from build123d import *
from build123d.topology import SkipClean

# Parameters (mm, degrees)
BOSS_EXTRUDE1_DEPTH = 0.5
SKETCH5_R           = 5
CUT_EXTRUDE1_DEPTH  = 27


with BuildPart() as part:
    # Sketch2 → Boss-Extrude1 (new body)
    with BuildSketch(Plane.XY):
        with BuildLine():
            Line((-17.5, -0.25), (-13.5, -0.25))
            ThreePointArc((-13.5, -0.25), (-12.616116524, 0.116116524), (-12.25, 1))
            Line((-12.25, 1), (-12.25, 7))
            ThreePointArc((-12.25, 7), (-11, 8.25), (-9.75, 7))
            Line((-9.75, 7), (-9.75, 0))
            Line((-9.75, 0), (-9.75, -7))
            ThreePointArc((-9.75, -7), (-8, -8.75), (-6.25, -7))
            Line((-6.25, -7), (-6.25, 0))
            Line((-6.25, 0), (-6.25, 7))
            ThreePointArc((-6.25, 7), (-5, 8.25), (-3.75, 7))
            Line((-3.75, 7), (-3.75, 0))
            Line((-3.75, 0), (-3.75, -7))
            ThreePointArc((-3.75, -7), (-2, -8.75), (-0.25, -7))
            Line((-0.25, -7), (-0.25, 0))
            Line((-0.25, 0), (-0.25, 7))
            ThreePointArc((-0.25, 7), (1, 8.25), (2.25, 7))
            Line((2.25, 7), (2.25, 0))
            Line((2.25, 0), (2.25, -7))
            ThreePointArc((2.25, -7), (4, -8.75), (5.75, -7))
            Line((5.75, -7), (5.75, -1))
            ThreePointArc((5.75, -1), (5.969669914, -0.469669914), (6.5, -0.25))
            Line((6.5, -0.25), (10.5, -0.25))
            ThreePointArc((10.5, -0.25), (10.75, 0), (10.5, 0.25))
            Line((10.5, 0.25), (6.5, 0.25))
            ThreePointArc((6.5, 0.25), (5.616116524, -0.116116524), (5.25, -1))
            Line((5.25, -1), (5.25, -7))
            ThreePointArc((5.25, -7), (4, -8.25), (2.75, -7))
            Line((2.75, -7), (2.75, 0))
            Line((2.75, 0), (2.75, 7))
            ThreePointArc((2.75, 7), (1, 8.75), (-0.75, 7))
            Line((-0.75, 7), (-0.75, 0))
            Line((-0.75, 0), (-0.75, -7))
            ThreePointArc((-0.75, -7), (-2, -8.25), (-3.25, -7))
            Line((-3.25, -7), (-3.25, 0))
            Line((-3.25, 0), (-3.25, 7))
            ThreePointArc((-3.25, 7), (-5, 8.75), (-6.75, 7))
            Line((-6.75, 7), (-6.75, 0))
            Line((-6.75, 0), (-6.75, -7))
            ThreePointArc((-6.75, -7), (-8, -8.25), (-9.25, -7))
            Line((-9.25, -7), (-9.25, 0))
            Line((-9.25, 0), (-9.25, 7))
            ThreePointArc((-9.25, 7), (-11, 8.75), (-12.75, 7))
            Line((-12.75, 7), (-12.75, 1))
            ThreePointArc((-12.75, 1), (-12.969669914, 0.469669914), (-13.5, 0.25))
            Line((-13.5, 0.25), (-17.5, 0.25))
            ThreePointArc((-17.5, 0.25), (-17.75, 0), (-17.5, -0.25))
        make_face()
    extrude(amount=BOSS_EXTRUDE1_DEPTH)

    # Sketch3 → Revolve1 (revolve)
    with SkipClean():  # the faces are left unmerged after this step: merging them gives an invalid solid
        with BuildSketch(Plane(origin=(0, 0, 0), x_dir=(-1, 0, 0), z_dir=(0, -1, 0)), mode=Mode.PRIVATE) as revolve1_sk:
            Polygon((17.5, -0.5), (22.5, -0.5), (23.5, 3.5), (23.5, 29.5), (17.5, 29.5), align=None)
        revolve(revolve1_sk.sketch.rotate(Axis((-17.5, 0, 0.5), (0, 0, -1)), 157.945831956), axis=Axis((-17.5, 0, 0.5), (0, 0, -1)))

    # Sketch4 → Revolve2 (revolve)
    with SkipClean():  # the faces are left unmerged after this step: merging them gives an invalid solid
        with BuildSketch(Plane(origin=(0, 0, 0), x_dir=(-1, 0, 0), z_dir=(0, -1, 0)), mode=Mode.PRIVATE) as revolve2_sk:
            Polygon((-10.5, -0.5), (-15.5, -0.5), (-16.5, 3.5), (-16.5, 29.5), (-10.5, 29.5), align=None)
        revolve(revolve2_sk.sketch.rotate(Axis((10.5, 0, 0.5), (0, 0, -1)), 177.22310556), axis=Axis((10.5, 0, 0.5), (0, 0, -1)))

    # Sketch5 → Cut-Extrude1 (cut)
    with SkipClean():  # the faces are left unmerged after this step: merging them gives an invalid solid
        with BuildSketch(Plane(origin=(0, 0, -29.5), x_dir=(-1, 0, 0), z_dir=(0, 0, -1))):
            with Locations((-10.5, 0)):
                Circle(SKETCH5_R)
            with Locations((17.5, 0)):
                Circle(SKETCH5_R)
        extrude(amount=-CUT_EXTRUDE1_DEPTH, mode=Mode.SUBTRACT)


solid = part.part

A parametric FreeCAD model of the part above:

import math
import FreeCAD as App
import Part
import Sketcher
from FreeCAD import Vector


def add_polygon(sketch, points):
    """Adds a closed chain of lines whose ends are joined by coincident constraints."""
    first, n = sketch.GeometryCount, len(points)
    for a, b in zip(points, points[1:] + points[:1]):
        sketch.addGeometry(Part.LineSegment(App.Vector(*a, 0), App.Vector(*b, 0)), False)
    for i in range(n):
        sketch.addConstraint(Sketcher.Constraint("Coincident", first + i, 2, first + (i + 1) % n, 1))

doc = App.newDocument("Part")
body = doc.addObject("PartDesign::Body", "Body")

# Sketch on XY plane
sketch1 = body.newObject("Sketcher::SketchObject", "Sketch")
sketch1.AttachmentSupport = (doc.getObject("XY_Plane"), [""])
sketch1.MapMode = "FlatFace"
sketch1.addGeometry(Part.LineSegment(Vector(-17.5, -0.25, 0), Vector(-13.5, -0.25, 0)), False)
sketch1.addGeometry(Part.ArcOfCircle(Part.Circle(Vector(-13.5, 1, 0), Vector(0, 0, 1), 1.25), math.radians(-90), math.radians(0)), False)
sketch1.addGeometry(Part.LineSegment(Vector(-12.25, 1, 0), Vector(-12.25, 7, 0)), False)
sketch1.addGeometry(Part.ArcOfCircle(Part.Circle(Vector(-11, 7, 0), Vector(0, 0, 1), 1.25), math.radians(0), math.radians(180)), False)
sketch1.addGeometry(Part.LineSegment(Vector(-9.75, 7, 0), Vector(-9.75, -7, 0)), False)
sketch1.addGeometry(Part.ArcOfCircle(Part.Circle(Vector(-8, -7, 0), Vector(0, 0, 1), 1.75), math.radians(180), math.radians(360)), False)
sketch1.addGeometry(Part.LineSegment(Vector(-6.25, -7, 0), Vector(-6.25, 7, 0)), False)
sketch1.addGeometry(Part.ArcOfCircle(Part.Circle(Vector(-5, 7, 0), Vector(0, 0, 1), 1.25), math.radians(0), math.radians(180)), False)
sketch1.addGeometry(Part.LineSegment(Vector(-3.75, 7, 0), Vector(-3.75, -7, 0)), False)
sketch1.addGeometry(Part.ArcOfCircle(Part.Circle(Vector(-2, -7, 0), Vector(0, 0, 1), 1.75), math.radians(180), math.radians(360)), False)
sketch1.addGeometry(Part.LineSegment(Vector(-0.25, -7, 0), Vector(-0.25, 7, 0)), False)
sketch1.addGeometry(Part.ArcOfCircle(Part.Circle(Vector(1, 7, 0), Vector(0, 0, 1), 1.25), math.radians(0), math.radians(180)), False)
sketch1.addGeometry(Part.LineSegment(Vector(2.25, 7, 0), Vector(2.25, -7, 0)), False)
sketch1.addGeometry(Part.ArcOfCircle(Part.Circle(Vector(4, -7, 0), Vector(0, 0, 1), 1.75), math.radians(180), math.radians(360)), False)
sketch1.addGeometry(Part.LineSegment(Vector(5.75, -7, 0), Vector(5.75, -1, 0)), False)
sketch1.addGeometry(Part.ArcOfCircle(Part.Circle(Vector(6.5, -1, 0), Vector(0, 0, 1), 0.75), math.radians(90), math.radians(180)), False)
sketch1.addGeometry(Part.LineSegment(Vector(6.5, -0.25, 0), Vector(10.5, -0.25, 0)), False)
sketch1.addGeometry(Part.ArcOfCircle(Part.Circle(Vector(10.5, 0, 0), Vector(0, 0, 1), 0.25), math.radians(-90), math.radians(90)), False)
sketch1.addGeometry(Part.LineSegment(Vector(10.5, 0.25, 0), Vector(6.5, 0.25, 0)), False)
sketch1.addGeometry(Part.ArcOfCircle(Part.Circle(Vector(6.5, -1, 0), Vector(0, 0, 1), 1.25), math.radians(90), math.radians(180)), False)
sketch1.addGeometry(Part.LineSegment(Vector(5.25, -1, 0), Vector(5.25, -7, 0)), False)
sketch1.addGeometry(Part.ArcOfCircle(Part.Circle(Vector(4, -7, 0), Vector(0, 0, 1), 1.25), math.radians(180), math.radians(360)), False)
sketch1.addGeometry(Part.LineSegment(Vector(2.75, -7, 0), Vector(2.75, 7, 0)), False)
sketch1.addGeometry(Part.ArcOfCircle(Part.Circle(Vector(1, 7, 0), Vector(0, 0, 1), 1.75), math.radians(0), math.radians(180)), False)
sketch1.addGeometry(Part.LineSegment(Vector(-0.75, 7, 0), Vector(-0.75, -7, 0)), False)
sketch1.addGeometry(Part.ArcOfCircle(Part.Circle(Vector(-2, -7, 0), Vector(0, 0, 1), 1.25), math.radians(180), math.radians(360)), False)
sketch1.addGeometry(Part.LineSegment(Vector(-3.25, -7, 0), Vector(-3.25, 7, 0)), False)
sketch1.addGeometry(Part.ArcOfCircle(Part.Circle(Vector(-5, 7, 0), Vector(0, 0, 1), 1.75), math.radians(0), math.radians(180)), False)
sketch1.addGeometry(Part.LineSegment(Vector(-6.75, 7, 0), Vector(-6.75, -7, 0)), False)
sketch1.addGeometry(Part.ArcOfCircle(Part.Circle(Vector(-8, -7, 0), Vector(0, 0, 1), 1.25), math.radians(180), math.radians(360)), False)
sketch1.addGeometry(Part.LineSegment(Vector(-9.25, -7, 0), Vector(-9.25, 7, 0)), False)
sketch1.addGeometry(Part.ArcOfCircle(Part.Circle(Vector(-11, 7, 0), Vector(0, 0, 1), 1.75), math.radians(0), math.radians(180)), False)
sketch1.addGeometry(Part.LineSegment(Vector(-12.75, 7, 0), Vector(-12.75, 1, 0)), False)
sketch1.addGeometry(Part.ArcOfCircle(Part.Circle(Vector(-13.5, 1, 0), Vector(0, 0, 1), 0.75), math.radians(-90), math.radians(0)), False)
sketch1.addGeometry(Part.LineSegment(Vector(-13.5, 0.25, 0), Vector(-17.5, 0.25, 0)), False)
sketch1.addGeometry(Part.ArcOfCircle(Part.Circle(Vector(-17.5, 0, 0), Vector(0, 0, 1), 0.25), math.radians(90), math.radians(270)), False)
sketch1.addConstraint(Sketcher.Constraint("Tangent", 0, 2, 1, 1))
sketch1.addConstraint(Sketcher.Constraint("Tangent", 1, 2, 2, 1))
sketch1.addConstraint(Sketcher.Constraint("Tangent", 2, 2, 3, 2))
sketch1.addConstraint(Sketcher.Constraint("Tangent", 3, 1, 4, 1))
sketch1.addConstraint(Sketcher.Constraint("Tangent", 4, 2, 5, 1))
sketch1.addConstraint(Sketcher.Constraint("Tangent", 5, 2, 6, 1))
sketch1.addConstraint(Sketcher.Constraint("Tangent", 6, 2, 7, 2))
sketch1.addConstraint(Sketcher.Constraint("Tangent", 7, 1, 8, 1))
sketch1.addConstraint(Sketcher.Constraint("Tangent", 8, 2, 9, 1))
sketch1.addConstraint(Sketcher.Constraint("Tangent", 9, 2, 10, 1))
sketch1.addConstraint(Sketcher.Constraint("Tangent", 10, 2, 11, 2))
sketch1.addConstraint(Sketcher.Constraint("Tangent", 11, 1, 12, 1))
sketch1.addConstraint(Sketcher.Constraint("Tangent", 12, 2, 13, 1))
sketch1.addConstraint(Sketcher.Constraint("Tangent", 13, 2, 14, 1))
sketch1.addConstraint(Sketcher.Constraint("Tangent", 14, 2, 15, 2))
sketch1.addConstraint(Sketcher.Constraint("Tangent", 15, 1, 16, 1))
sketch1.addConstraint(Sketcher.Constraint("Tangent", 16, 2, 17, 1))
sketch1.addConstraint(Sketcher.Constraint("Tangent", 17, 2, 18, 1))
sketch1.addConstraint(Sketcher.Constraint("Tangent", 18, 2, 19, 1))
sketch1.addConstraint(Sketcher.Constraint("Tangent", 19, 2, 20, 1))
sketch1.addConstraint(Sketcher.Constraint("Tangent", 20, 2, 21, 2))
sketch1.addConstraint(Sketcher.Constraint("Tangent", 21, 1, 22, 1))
sketch1.addConstraint(Sketcher.Constraint("Tangent", 22, 2, 23, 1))
sketch1.addConstraint(Sketcher.Constraint("Tangent", 23, 2, 24, 1))
sketch1.addConstraint(Sketcher.Constraint("Tangent", 24, 2, 25, 2))
sketch1.addConstraint(Sketcher.Constraint("Tangent", 25, 1, 26, 1))
sketch1.addConstraint(Sketcher.Constraint("Tangent", 26, 2, 27, 1))
sketch1.addConstraint(Sketcher.Constraint("Tangent", 27, 2, 28, 1))
sketch1.addConstraint(Sketcher.Constraint("Tangent", 28, 2, 29, 2))
sketch1.addConstraint(Sketcher.Constraint("Tangent", 29, 1, 30, 1))
sketch1.addConstraint(Sketcher.Constraint("Tangent", 30, 2, 31, 1))
sketch1.addConstraint(Sketcher.Constraint("Tangent", 31, 2, 32, 1))
sketch1.addConstraint(Sketcher.Constraint("Tangent", 32, 2, 33, 2))
sketch1.addConstraint(Sketcher.Constraint("Tangent", 33, 1, 34, 1))
sketch1.addConstraint(Sketcher.Constraint("Tangent", 34, 2, 35, 1))
sketch1.addConstraint(Sketcher.Constraint("Tangent", 35, 2, 0, 1))
sketch1.addConstraint(Sketcher.Constraint("Horizontal", 0))
sketch1.addConstraint(Sketcher.Constraint("Vertical", 2))
sketch1.addConstraint(Sketcher.Constraint("Vertical", 4))
sketch1.addConstraint(Sketcher.Constraint("Vertical", 6))
sketch1.addConstraint(Sketcher.Constraint("Vertical", 8))
sketch1.addConstraint(Sketcher.Constraint("Vertical", 10))
sketch1.addConstraint(Sketcher.Constraint("Vertical", 12))
sketch1.addConstraint(Sketcher.Constraint("Vertical", 14))
sketch1.addConstraint(Sketcher.Constraint("Horizontal", 16))
sketch1.addConstraint(Sketcher.Constraint("Horizontal", 18))
sketch1.addConstraint(Sketcher.Constraint("Vertical", 20))
sketch1.addConstraint(Sketcher.Constraint("Vertical", 22))
sketch1.addConstraint(Sketcher.Constraint("Vertical", 24))
sketch1.addConstraint(Sketcher.Constraint("Vertical", 26))
sketch1.addConstraint(Sketcher.Constraint("Vertical", 28))
sketch1.addConstraint(Sketcher.Constraint("Vertical", 30))
sketch1.addConstraint(Sketcher.Constraint("Vertical", 32))
sketch1.addConstraint(Sketcher.Constraint("Horizontal", 34))
sketch1.addConstraint(Sketcher.Constraint("Coincident", 19, 3, 15, 3))
sketch1.addConstraint(Sketcher.Constraint("Coincident", 21, 3, 13, 3))
sketch1.addConstraint(Sketcher.Constraint("Coincident", 23, 3, 11, 3))
sketch1.addConstraint(Sketcher.Constraint("Coincident", 25, 3, 9, 3))
sketch1.addConstraint(Sketcher.Constraint("Coincident", 27, 3, 7, 3))
sketch1.addConstraint(Sketcher.Constraint("Coincident", 29, 3, 5, 3))
sketch1.addConstraint(Sketcher.Constraint("Coincident", 31, 3, 3, 3))
sketch1.addConstraint(Sketcher.Constraint("Coincident", 33, 3, 1, 3))
sketch1.addConstraint(Sketcher.Constraint("Equal", 1, 3))
sketch1.addConstraint(Sketcher.Constraint("Equal", 3, 7))
sketch1.addConstraint(Sketcher.Constraint("Equal", 5, 9))
sketch1.addConstraint(Sketcher.Constraint("Equal", 7, 11))
sketch1.addConstraint(Sketcher.Constraint("Equal", 9, 13))
sketch1.addConstraint(Sketcher.Constraint("Equal", 11, 19))
sketch1.addConstraint(Sketcher.Constraint("Equal", 19, 21))
sketch1.addConstraint(Sketcher.Constraint("PointOnObject", 17, 3, -1))
sketch1.addConstraint(Sketcher.Constraint("PointOnObject", 35, 3, -1))
sketch1.addConstraint(Sketcher.Constraint("Horizontal", 3, 3, 7, 3))
sketch1.addConstraint(Sketcher.Constraint("Horizontal", 5, 3, 9, 3))
sketch1.addConstraint(Sketcher.Constraint("Horizontal", 7, 3, 11, 3))
sketch1.addConstraint(Sketcher.Constraint("Horizontal", 9, 3, 13, 3))
sketch1.addConstraint(Sketcher.Constraint("Equal", 0, 16))
sketch1.addConstraint(Sketcher.Constraint("Equal", 2, 14))
sketch1.addConstraint(Sketcher.Constraint("DistanceX", 0, 1, 0, 2, 4.0))
sketch1.addConstraint(Sketcher.Constraint("DistanceY", 2, 1, 2, 2, 6.0))
sketch1.addConstraint(Sketcher.Constraint("DistanceY", 4, 2, 4, 1, 14.0))
sketch1.addConstraint(Sketcher.Constraint("Radius", 1, 1.25))
sketch1.addConstraint(Sketcher.Constraint("DistanceX", 3, 3, -1, 1, 11.0))
pad1 = body.newObject("PartDesign::Pad", "Pad")
pad1.Profile = sketch1
pad1.Length = 0.5

# Sketch on XZ plane
sketch2 = body.newObject("Sketcher::SketchObject", "Sketch001")
sketch2.AttachmentSupport = (doc.getObject("XZ_Plane"), [""])
sketch2.MapMode = "FlatFace"
add_polygon(sketch2, [(-17.5, 0.5), (-22.5, 0.5), (-23.5, -3.5), (-23.5, -29.5), (-17.5, -29.5)])  # lines 0-4
sketch2.addGeometry(Part.LineSegment(Vector(-17.5, 0.5, 0), Vector(-17.5, -29.5, 0)), True)  # axis
sketch2.addConstraint(Sketcher.Constraint("Horizontal", 0))
sketch2.addConstraint(Sketcher.Constraint("Vertical", 2))
sketch2.addConstraint(Sketcher.Constraint("Horizontal", 3))
sketch2.addConstraint(Sketcher.Constraint("Vertical", 4))
sketch2.addConstraint(Sketcher.Constraint("Vertical", 5))
sketch2.addConstraint(Sketcher.Constraint("Coincident", 5, 1, 4, 2))
sketch2.addConstraint(Sketcher.Constraint("Horizontal", 2, 2, 5, 2))
sketch2.addConstraint(Sketcher.Constraint("DistanceX", 0, 2, 0, 1, 5.0))
sketch2.addConstraint(Sketcher.Constraint("DistanceX", 3, 1, 3, 2, 6.0))
sketch2.addConstraint(Sketcher.Constraint("DistanceY", 2, 2, 2, 1, 26.0))
sketch2.addConstraint(Sketcher.Constraint("DistanceY", 4, 1, 4, 2, 30.0))
sketch2.addConstraint(Sketcher.Constraint("DistanceX", 0, 2, -1, 1, 22.5))
sketch2.addConstraint(Sketcher.Constraint("DistanceY", -1, 1, 0, 2, 0.5))
revolution = body.newObject("PartDesign::Revolution", "Revolution")
revolution.Profile = sketch2
revolution.ReferenceAxis = (sketch2, ["Axis0"])
revolution.Angle = 360

# Sketch on XZ plane
sketch3 = body.newObject("Sketcher::SketchObject", "Sketch002")
sketch3.AttachmentSupport = (doc.getObject("XZ_Plane"), [""])
sketch3.MapMode = "FlatFace"
add_polygon(sketch3, [(15.5, 0.5), (10.5, 0.5), (10.5, -29.5), (16.5, -29.5), (16.5, -3.5)])  # lines 0-4
sketch3.addGeometry(Part.LineSegment(Vector(10.5, 0.5, 0), Vector(10.5, -29.5, 0)), True)  # axis
sketch3.addConstraint(Sketcher.Constraint("Horizontal", 0))
sketch3.addConstraint(Sketcher.Constraint("Vertical", 1))
sketch3.addConstraint(Sketcher.Constraint("Horizontal", 2))
sketch3.addConstraint(Sketcher.Constraint("Vertical", 3))
sketch3.addConstraint(Sketcher.Constraint("Vertical", 5))
sketch3.addConstraint(Sketcher.Constraint("Coincident", 5, 1, 0, 2))
sketch3.addConstraint(Sketcher.Constraint("Horizontal", 2, 2, 5, 2))
sketch3.addConstraint(Sketcher.Constraint("DistanceX", 0, 2, 0, 1, 5.0))
sketch3.addConstraint(Sketcher.Constraint("DistanceX", 2, 1, 2, 2, 6.0))
sketch3.addConstraint(Sketcher.Constraint("DistanceY", 1, 2, 1, 1, 30.0))
sketch3.addConstraint(Sketcher.Constraint("DistanceY", 3, 1, 3, 2, 26.0))
sketch3.addConstraint(Sketcher.Constraint("DistanceX", -1, 1, 0, 2, 10.5))
sketch3.addConstraint(Sketcher.Constraint("DistanceY", -1, 1, 0, 2, 0.5))
revolution2 = body.newObject("PartDesign::Revolution", "Revolution001")
revolution2.Profile = sketch3
revolution2.ReferenceAxis = (sketch3, ["Axis0"])
revolution2.Angle = 360

# Sketch on XY plane
sketch4 = body.newObject("Sketcher::SketchObject", "Sketch003")
sketch4.AttachmentSupport = (doc.getObject("XY_Plane"), [""])
sketch4.MapMode = "FlatFace"
sketch4.AttachmentOffset = App.Placement(Vector(0, 0, -29.5), App.Rotation())
sketch4.addGeometry(Part.Circle(Vector(10, 0, 0), Vector(0, 0, 1), 5), False)
sketch4.addGeometry(Part.Circle(Vector(-18, 0, 0), Vector(0, 0, 1), 5), False)
sketch4.addConstraint(Sketcher.Constraint("Equal", 0, 1))
sketch4.addConstraint(Sketcher.Constraint("PointOnObject", 0, 3, -1))
sketch4.addConstraint(Sketcher.Constraint("PointOnObject", 1, 3, -1))
sketch4.addConstraint(Sketcher.Constraint("Diameter", 0, 10.0))
sketch4.addConstraint(Sketcher.Constraint("DistanceX", 1, 3, 0, 3, 28.0))
sketch4.addConstraint(Sketcher.Constraint("DistanceX", -1, 1, 0, 3, 10.5))
pocket1 = body.newObject("PartDesign::Pocket", "Pocket")
pocket1.Profile = sketch4
pocket1.Length = 27
pocket1.Reversed = True

doc.recompute()
